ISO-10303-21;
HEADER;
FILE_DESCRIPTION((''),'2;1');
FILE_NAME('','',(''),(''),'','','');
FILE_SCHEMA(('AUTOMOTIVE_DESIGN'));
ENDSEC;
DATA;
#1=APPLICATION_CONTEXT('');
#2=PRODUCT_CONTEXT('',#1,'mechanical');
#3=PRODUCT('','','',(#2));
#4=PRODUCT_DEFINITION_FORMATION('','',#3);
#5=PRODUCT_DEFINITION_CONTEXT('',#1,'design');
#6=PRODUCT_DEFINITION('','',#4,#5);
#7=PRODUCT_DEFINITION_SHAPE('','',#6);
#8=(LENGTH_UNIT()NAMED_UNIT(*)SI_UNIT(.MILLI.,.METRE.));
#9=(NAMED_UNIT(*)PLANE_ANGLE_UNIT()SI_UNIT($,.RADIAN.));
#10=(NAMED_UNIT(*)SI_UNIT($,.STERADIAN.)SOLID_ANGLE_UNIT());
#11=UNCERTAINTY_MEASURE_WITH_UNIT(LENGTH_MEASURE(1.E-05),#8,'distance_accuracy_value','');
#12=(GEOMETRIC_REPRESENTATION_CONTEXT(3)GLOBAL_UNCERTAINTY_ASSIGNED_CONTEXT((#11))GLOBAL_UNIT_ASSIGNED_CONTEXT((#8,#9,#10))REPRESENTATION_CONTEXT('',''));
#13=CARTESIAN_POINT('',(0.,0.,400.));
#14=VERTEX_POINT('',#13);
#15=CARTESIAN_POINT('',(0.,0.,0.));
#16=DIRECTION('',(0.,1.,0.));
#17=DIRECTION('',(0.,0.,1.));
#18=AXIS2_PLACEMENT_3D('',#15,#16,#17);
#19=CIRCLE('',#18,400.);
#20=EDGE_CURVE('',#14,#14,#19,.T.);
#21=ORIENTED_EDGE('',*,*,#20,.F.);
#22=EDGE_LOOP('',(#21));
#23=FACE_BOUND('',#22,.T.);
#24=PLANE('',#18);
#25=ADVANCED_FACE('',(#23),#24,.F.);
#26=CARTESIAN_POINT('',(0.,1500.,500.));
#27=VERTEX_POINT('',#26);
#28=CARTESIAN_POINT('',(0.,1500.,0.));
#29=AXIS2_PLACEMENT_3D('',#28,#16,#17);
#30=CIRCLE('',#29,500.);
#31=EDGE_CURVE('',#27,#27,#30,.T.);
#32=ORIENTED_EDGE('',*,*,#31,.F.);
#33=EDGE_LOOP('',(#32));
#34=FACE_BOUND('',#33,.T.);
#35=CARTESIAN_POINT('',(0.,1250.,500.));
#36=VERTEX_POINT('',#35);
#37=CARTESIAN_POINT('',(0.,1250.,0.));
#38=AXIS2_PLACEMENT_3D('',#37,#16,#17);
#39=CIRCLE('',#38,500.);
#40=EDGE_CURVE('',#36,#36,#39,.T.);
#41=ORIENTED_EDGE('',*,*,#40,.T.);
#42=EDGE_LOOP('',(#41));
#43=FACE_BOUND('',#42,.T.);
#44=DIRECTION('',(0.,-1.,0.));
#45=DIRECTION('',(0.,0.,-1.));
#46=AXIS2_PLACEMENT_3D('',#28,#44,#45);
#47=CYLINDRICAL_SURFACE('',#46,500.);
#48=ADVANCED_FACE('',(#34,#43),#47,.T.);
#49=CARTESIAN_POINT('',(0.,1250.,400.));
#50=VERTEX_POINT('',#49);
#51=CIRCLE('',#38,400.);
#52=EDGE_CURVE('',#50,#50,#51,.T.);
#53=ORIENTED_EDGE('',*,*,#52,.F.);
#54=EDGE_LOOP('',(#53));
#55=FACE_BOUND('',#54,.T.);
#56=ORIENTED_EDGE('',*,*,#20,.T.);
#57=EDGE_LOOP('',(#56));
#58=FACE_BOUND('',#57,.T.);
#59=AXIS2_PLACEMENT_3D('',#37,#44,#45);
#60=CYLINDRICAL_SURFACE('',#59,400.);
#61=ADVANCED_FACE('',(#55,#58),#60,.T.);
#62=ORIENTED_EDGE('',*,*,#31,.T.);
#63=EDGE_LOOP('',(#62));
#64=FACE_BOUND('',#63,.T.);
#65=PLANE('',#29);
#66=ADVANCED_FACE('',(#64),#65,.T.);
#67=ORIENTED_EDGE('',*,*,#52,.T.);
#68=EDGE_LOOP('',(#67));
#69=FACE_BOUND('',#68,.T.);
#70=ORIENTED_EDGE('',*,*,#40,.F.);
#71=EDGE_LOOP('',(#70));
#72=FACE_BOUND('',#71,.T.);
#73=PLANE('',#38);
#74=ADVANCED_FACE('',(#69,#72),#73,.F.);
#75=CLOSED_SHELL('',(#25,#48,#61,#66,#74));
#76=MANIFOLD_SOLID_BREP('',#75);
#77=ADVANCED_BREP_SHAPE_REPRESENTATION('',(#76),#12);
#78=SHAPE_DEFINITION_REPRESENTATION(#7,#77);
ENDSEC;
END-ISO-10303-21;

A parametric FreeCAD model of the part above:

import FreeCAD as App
import Part
import Sketcher
Q = App.Units.Quantity

doc = App.newDocument("Part")
body = doc.addObject("PartDesign::Body", "Body")

# Sketch on XZ plane
sketch1 = body.newObject("Sketcher::SketchObject", "Sketch")
sketch1.AttachmentSupport = (doc.getObject("XZ_Plane"), [""])
sketch1.MapMode = "FlatFace"
sketch1.addGeometry(Part.Circle(App.Vector(0, 0, 0), App.Vector(0, 0, 1), 400), False)
sketch1.addConstraint([
    Sketcher.Constraint("Coincident", 0, 3, -1, 1),
    Sketcher.Constraint("Diameter", 0, Q("800 mm")),
])
pad1 = body.newObject("PartDesign::Pad", "Pad")
pad1.Profile = sketch1
pad1.Length = 1250
pad1.Reversed = True

# Sketch on XZ plane
sketch2 = body.newObject("Sketcher::SketchObject", "Sketch001")
sketch2.AttachmentSupport = (doc.getObject("XZ_Plane"), [""])
sketch2.MapMode = "FlatFace"
sketch2.AttachmentOffset = App.Placement(App.Vector(0, 0, -1250), App.Rotation())
sketch2.addGeometry(Part.Circle(App.Vector(0, 0, 0), App.Vector(0, 0, 1), 500), False)
sketch2.addConstraint([
    Sketcher.Constraint("Coincident", 0, 3, -1, 1),
    Sketcher.Constraint("Diameter", 0, Q("1000 mm")),
])
pad2 = body.newObject("PartDesign::Pad", "Pad001")
pad2.Profile = sketch2
pad2.Length = 250
pad2.Reversed = True

doc.recompute()
